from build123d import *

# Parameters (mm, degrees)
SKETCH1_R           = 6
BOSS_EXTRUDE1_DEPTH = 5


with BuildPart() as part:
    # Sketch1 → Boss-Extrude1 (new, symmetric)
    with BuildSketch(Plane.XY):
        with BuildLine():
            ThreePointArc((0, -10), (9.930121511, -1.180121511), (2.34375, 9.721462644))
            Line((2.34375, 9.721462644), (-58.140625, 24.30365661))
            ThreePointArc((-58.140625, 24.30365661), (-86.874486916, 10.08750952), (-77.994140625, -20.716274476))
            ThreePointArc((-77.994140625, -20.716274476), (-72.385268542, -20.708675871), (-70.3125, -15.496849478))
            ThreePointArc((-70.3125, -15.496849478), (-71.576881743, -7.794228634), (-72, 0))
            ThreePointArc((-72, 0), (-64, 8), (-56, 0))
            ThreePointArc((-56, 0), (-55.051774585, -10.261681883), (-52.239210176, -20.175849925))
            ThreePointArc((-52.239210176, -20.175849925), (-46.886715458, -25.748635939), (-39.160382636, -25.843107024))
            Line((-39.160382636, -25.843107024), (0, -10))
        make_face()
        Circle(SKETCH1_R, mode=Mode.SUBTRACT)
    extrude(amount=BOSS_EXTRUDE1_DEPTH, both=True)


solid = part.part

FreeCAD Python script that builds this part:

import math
import FreeCAD as App
import Part
import Sketcher
Q = App.Units.Quantity

doc = App.newDocument("Part")
params = doc.addObject("Spreadsheet::Sheet", "Params")
for row, (alias, value) in enumerate([
    ("sketch1_diameter", "12 mm"),
    ("sketch1_radius", "10 mm"),
    ("sketch1_radius2", "25 mm"),
    ("sketch1_radius3", "5 mm"),
    ("sketch1_radius4", "72 mm"),
    ("pad1_length", "10 mm"),
], start=1):
    params.set(f"A{row}", alias)
    params.set(f"B{row}", "=" + value)
    params.setAlias(f"B{row}", alias)

body = doc.addObject("PartDesign::Body", "Body")

sketch1 = doc.addObject("Sketcher::SketchObject", "Sketch")
body.addObject(sketch1)
sketch1.AttachmentSupport = (doc.XY_Plane, [""])
sketch1.MapMode = "FlatFace"
sketch1.addGeometry([
    Part.ArcOfCircle(Part.Circle(App.Vector(0, 0, 0), App.Vector(0, 0, 1), 10), math.radians(-90), math.radians(76)),
    Part.LineSegment(App.Vector(2, 10, 0), App.Vector(-58, 24, 0)),
    Part.ArcOfCircle(Part.Circle(App.Vector(-64, 0, 0), App.Vector(0, 0, 1), 25), math.radians(76), math.radians(236)),
    Part.ArcOfCircle(Part.Circle(App.Vector(-75, -17, 0), App.Vector(0, 0, 1), 5), math.radians(-124), math.radians(12)),
    Part.ArcOfCircle(Part.Circle(App.Vector(0, 0, 0), App.Vector(0, 0, 1), 72), math.radians(180), math.radians(192.43)),
    Part.ArcOfCircle(Part.Circle(App.Vector(-64, 0, 0), App.Vector(0, 0, 1), 8), math.radians(0), math.radians(180)),
    Part.ArcOfCircle(Part.Circle(App.Vector(0, 0, 0), App.Vector(0, 0, 1), 56), math.radians(180), math.radians(201)),
    Part.ArcOfCircle(Part.Circle(App.Vector(-43, -17, 0), App.Vector(0, 0, 1), 10), math.radians(-159), math.radians(-68)),
    Part.LineSegment(App.Vector(-39, -26, 0), App.Vector(0, -10, 0)),
    Part.Circle(App.Vector(0, 0, 0), App.Vector(0, 0, 1), 6),
], False)
sketch1.addConstraint([
    Sketcher.Constraint("Tangent", 0, 2, 1, 1),
    Sketcher.Constraint("Tangent", 1, 2, 2, 1),
    Sketcher.Constraint("Tangent", 2, 2, 3, 1),
    Sketcher.Constraint("Tangent", 3, 2, 4, 2),
    Sketcher.Constraint("Tangent", 4, 1, 5, 2),
    Sketcher.Constraint("Tangent", 5, 1, 6, 1),
    Sketcher.Constraint("Tangent", 6, 2, 7, 1),
    Sketcher.Constraint("Tangent", 7, 2, 8, 1),
    Sketcher.Constraint("Coincident", 8, 2, 0, 1),
    Sketcher.Constraint("Coincident", 0, 3, -1, 1),
    Sketcher.Constraint("Coincident", 4, 3, -1, 1),
    Sketcher.Constraint("Coincident", 6, 3, -1, 1),
    Sketcher.Constraint("Coincident", 9, 3, -1, 1),
    Sketcher.Constraint("Coincident", 5, 3, 2, 3),
    Sketcher.Constraint("Equal", 0, 7),
    Sketcher.Constraint("PointOnObject", 2, 3, -1),
    Sketcher.Constraint("PointOnObject", 8, 2, -2),
    Sketcher.Constraint("Horizontal", 3, 3, 7, 3),
    Sketcher.Constraint("Diameter", 9, Q("12 mm")),
    Sketcher.Constraint("Radius", 0, Q("10 mm")),
    Sketcher.Constraint("Radius", 2, Q("25 mm")),
    Sketcher.Constraint("Radius", 3, Q("5 mm")),
    Sketcher.Constraint("Radius", 4, Q("72 mm")),
    Sketcher.Constraint("Radius", 5, Q("8 mm")),
])
sketch1.setExpression("Constraints[18]", "Params.sketch1_diameter")
sketch1.setExpression("Constraints[19]", "Params.sketch1_radius")
sketch1.setExpression("Constraints[20]", "Params.sketch1_radius2")
sketch1.setExpression("Constraints[21]", "Params.sketch1_radius3")
sketch1.setExpression("Constraints[22]", "Params.sketch1_radius4")
pad1 = doc.addObject("PartDesign::Pad", "Pad")
body.addObject(pad1)
pad1.Profile = sketch1
pad1.setExpression("Length", "Params.pad1_length")
pad1.Midplane = True

doc.recompute()
